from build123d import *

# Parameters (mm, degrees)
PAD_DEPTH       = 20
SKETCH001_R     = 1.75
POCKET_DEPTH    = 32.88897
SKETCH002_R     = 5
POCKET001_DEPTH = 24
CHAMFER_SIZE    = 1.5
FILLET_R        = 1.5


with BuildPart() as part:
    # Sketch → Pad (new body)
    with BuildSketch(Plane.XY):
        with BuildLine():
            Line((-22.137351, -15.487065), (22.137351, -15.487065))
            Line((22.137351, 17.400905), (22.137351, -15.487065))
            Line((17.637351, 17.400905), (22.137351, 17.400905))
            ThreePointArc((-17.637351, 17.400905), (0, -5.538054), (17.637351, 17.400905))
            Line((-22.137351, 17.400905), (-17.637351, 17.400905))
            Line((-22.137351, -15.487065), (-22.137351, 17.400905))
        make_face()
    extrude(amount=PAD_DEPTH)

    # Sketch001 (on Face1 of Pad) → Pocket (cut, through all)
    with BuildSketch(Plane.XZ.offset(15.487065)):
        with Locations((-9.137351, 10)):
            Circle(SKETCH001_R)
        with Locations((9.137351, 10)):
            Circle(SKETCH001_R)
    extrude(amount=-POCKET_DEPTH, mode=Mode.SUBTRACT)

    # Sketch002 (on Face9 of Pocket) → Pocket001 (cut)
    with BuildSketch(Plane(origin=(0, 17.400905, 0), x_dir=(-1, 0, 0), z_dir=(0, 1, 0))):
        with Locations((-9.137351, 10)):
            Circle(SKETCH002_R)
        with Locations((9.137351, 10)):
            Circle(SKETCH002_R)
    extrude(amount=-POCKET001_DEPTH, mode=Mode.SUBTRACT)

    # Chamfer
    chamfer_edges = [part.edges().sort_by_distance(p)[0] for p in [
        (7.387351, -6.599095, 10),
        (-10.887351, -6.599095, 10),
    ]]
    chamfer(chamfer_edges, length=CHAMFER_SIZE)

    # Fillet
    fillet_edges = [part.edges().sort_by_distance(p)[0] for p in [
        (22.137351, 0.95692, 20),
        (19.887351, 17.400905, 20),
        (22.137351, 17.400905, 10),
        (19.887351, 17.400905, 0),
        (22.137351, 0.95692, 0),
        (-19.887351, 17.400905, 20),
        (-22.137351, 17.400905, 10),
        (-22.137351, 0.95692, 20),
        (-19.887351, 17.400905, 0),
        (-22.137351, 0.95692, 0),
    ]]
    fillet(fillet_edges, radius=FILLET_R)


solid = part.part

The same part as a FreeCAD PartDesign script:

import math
import FreeCAD as App
import Part
import Sketcher


def edges_at(feature, points):
    """Names of the edges that pass closest to the given points."""
    edges = feature.Shape.Edges
    near = lambda p: min(range(len(edges)), key=lambda i: edges[i].distToShape(Part.Vertex(*p))[0])
    return sorted({f"Edge{near(p) + 1}" for p in points})

doc = App.newDocument("Part")
params = doc.addObject("Spreadsheet::Sheet", "Params")
for row, (alias, value) in enumerate([
    ("sketch1_radius", "18.25 mm"),
    ("sketch1_width", "4.5 mm"),
    ("pad1_length", "20 mm"),
    ("sketch2_diameter", "3.5 mm"),
    ("sketch3_diameter", "10 mm"),
    ("pocket2_length", "24 mm"),
    ("chamfer_size", "1.5 mm"),
    ("fillet_radius", "1.5 mm"),
], start=1):
    params.set(f"A{row}", alias)
    params.set(f"B{row}", "=" + value)
    params.setAlias(f"B{row}", alias)

body = doc.addObject("PartDesign::Body", "Body")

# Sketch on XY plane
sketch1 = body.newObject("Sketcher::SketchObject", "Sketch")
sketch1.AttachmentSupport = (doc.getObject("XY_Plane"), [""])
sketch1.MapMode = "FlatFace"
sketch1.addGeometry(Part.LineSegment(App.Vector(-22.1, -15.5, 0), App.Vector(22.1, -15.5, 0)), False)
sketch1.addGeometry(Part.LineSegment(App.Vector(22.1, -15.5, 0), App.Vector(22.1, 17.4, 0)), False)
sketch1.addGeometry(Part.LineSegment(App.Vector(22.1, 17.4, 0), App.Vector(17.6, 17.4, 0)), False)
sketch1.addGeometry(Part.ArcOfCircle(Part.Circle(App.Vector(0, 12.7, 0), App.Vector(0, 0, 1), 18.2), math.radians(165), math.radians(375)), False)
sketch1.addGeometry(Part.LineSegment(App.Vector(-17.6, 17.4, 0), App.Vector(-22.1, 17.4, 0)), False)
sketch1.addGeometry(Part.LineSegment(App.Vector(-22.1, 17.4, 0), App.Vector(-22.1, -15.5, 0)), False)
sketch1.addConstraint(Sketcher.Constraint("Coincident", 0, 2, 1, 1))
sketch1.addConstraint(Sketcher.Constraint("Coincident", 1, 2, 2, 1))
sketch1.addConstraint(Sketcher.Constraint("Coincident", 2, 2, 3, 2))
sketch1.addConstraint(Sketcher.Constraint("Coincident", 3, 1, 4, 1))
sketch1.addConstraint(Sketcher.Constraint("Coincident", 4, 2, 5, 1))
sketch1.addConstraint(Sketcher.Constraint("Coincident", 5, 2, 0, 1))
sketch1.addConstraint(Sketcher.Constraint("Horizontal", 0))
sketch1.addConstraint(Sketcher.Constraint("Vertical", 1))
sketch1.addConstraint(Sketcher.Constraint("Horizontal", 2))
sketch1.addConstraint(Sketcher.Constraint("Horizontal", 4))
sketch1.addConstraint(Sketcher.Constraint("Vertical", 5))
sketch1.addConstraint(Sketcher.Constraint("Symmetric", 2, 2, 3, 1, -2))
sketch1.addConstraint(Sketcher.Constraint("Equal", 2, 4))
sketch1.addConstraint(Sketcher.Constraint("Radius", 3, 18.25))
sketch1.addConstraint(Sketcher.Constraint("DistanceX", 2, 2, 2, 1, 4.5))
sketch1.addConstraint(Sketcher.Constraint("DistanceX", 0, 1, 0, 2, 44.274702))
sketch1.addConstraint(Sketcher.Constraint("DistanceY", 1, 1, 1, 2, 32.88797))
sketch1.addConstraint(Sketcher.Constraint("DistanceY", -1, 1, 3, 3, 12.711946))
sketch1.setExpression("Constraints[13]", "Params.sketch1_radius")
sketch1.setExpression("Constraints[14]", "Params.sketch1_width")
pad1 = body.newObject("PartDesign::Pad", "Pad")
pad1.Profile = sketch1
pad1.setExpression("Length", "Params.pad1_length")

# Sketch on XZ plane
sketch2 = body.newObject("Sketcher::SketchObject", "Sketch001")
sketch2.AttachmentSupport = (doc.getObject("XZ_Plane"), [""])
sketch2.MapMode = "FlatFace"
sketch2.AttachmentOffset = App.Placement(App.Vector(0, 0, 15.487065), App.Rotation())
sketch2.addGeometry(Part.Circle(App.Vector(-9.1, 10, 0), App.Vector(0, 0, 1), 1.8), False)
sketch2.addGeometry(Part.Circle(App.Vector(9.1, 10, 0), App.Vector(0, 0, 1), 1.8), False)
sketch2.addConstraint(Sketcher.Constraint("Equal", 0, 1))
sketch2.addConstraint(Sketcher.Constraint("Symmetric", 0, 3, 1, 3, -2))
sketch2.addConstraint(Sketcher.Constraint("Diameter", 0, 3.5))
sketch2.addConstraint(Sketcher.Constraint("DistanceY", -1, 1, 0, 3, 10.0))
sketch2.addConstraint(Sketcher.Constraint("DistanceX", 0, 3, -1, 1, 9.137351))
sketch2.setExpression("Constraints[2]", "Params.sketch2_diameter")
pocket1 = body.newObject("PartDesign::Pocket", "Pocket")
pocket1.Profile = sketch2
pocket1.Type = "ThroughAll"

# Sketch on XZ plane
sketch3 = body.newObject("Sketcher::SketchObject", "Sketch002")
sketch3.AttachmentSupport = (doc.getObject("XZ_Plane"), [""])
sketch3.MapMode = "FlatFace"
sketch3.AttachmentOffset = App.Placement(App.Vector(0, 0, -17.400905), App.Rotation())
sketch3.addGeometry(Part.Circle(App.Vector(9, 10, 0), App.Vector(0, 0, 1), 5), False)
sketch3.addGeometry(Part.Circle(App.Vector(-9, 10, 0), App.Vector(0, 0, 1), 5), False)
sketch3.addConstraint(Sketcher.Constraint("Equal", 0, 1))
sketch3.addConstraint(Sketcher.Constraint("Symmetric", 0, 3, 1, 3, -2))
sketch3.addConstraint(Sketcher.Constraint("Diameter", 0, 10.0))
sketch3.addConstraint(Sketcher.Constraint("DistanceY", -1, 1, 0, 3, 10.0))
sketch3.addConstraint(Sketcher.Constraint("DistanceX", -1, 1, 0, 3, 9.137351))
sketch3.setExpression("Constraints[2]", "Params.sketch3_diameter")
pocket2 = body.newObject("PartDesign::Pocket", "Pocket001")
pocket2.Profile = sketch3
pocket2.setExpression("Length", "Params.pocket2_length")
pocket2.Reversed = True
doc.recompute()

chamfer = body.newObject("PartDesign::Chamfer", "Chamfer")
chamfer.Base = (pocket2, edges_at(pocket2, [(7.387, -6.599, 10), (-10.887, -6.599, 10)]))
chamfer.setExpression("Size", "Params.chamfer_size")
doc.recompute()

fillet = body.newObject("PartDesign::Fillet", "Fillet")
fillet.Base = (chamfer, edges_at(chamfer, [
    (22.137, 0.957, 20),
    (19.887, 17.401, 20),
    (22.137, 17.401, 10),
    (19.887, 17.401, 0),
    (22.137, 0.957, 0),
    (-19.887, 17.401, 20),
    (-22.137, 17.401, 10),
    (-22.137, 0.957, 20),
    (-19.887, 17.401, 0),
    (-22.137, 0.957, 0),
]))
fillet.setExpression("Radius", "Params.fillet_radius")

doc.recompute()
